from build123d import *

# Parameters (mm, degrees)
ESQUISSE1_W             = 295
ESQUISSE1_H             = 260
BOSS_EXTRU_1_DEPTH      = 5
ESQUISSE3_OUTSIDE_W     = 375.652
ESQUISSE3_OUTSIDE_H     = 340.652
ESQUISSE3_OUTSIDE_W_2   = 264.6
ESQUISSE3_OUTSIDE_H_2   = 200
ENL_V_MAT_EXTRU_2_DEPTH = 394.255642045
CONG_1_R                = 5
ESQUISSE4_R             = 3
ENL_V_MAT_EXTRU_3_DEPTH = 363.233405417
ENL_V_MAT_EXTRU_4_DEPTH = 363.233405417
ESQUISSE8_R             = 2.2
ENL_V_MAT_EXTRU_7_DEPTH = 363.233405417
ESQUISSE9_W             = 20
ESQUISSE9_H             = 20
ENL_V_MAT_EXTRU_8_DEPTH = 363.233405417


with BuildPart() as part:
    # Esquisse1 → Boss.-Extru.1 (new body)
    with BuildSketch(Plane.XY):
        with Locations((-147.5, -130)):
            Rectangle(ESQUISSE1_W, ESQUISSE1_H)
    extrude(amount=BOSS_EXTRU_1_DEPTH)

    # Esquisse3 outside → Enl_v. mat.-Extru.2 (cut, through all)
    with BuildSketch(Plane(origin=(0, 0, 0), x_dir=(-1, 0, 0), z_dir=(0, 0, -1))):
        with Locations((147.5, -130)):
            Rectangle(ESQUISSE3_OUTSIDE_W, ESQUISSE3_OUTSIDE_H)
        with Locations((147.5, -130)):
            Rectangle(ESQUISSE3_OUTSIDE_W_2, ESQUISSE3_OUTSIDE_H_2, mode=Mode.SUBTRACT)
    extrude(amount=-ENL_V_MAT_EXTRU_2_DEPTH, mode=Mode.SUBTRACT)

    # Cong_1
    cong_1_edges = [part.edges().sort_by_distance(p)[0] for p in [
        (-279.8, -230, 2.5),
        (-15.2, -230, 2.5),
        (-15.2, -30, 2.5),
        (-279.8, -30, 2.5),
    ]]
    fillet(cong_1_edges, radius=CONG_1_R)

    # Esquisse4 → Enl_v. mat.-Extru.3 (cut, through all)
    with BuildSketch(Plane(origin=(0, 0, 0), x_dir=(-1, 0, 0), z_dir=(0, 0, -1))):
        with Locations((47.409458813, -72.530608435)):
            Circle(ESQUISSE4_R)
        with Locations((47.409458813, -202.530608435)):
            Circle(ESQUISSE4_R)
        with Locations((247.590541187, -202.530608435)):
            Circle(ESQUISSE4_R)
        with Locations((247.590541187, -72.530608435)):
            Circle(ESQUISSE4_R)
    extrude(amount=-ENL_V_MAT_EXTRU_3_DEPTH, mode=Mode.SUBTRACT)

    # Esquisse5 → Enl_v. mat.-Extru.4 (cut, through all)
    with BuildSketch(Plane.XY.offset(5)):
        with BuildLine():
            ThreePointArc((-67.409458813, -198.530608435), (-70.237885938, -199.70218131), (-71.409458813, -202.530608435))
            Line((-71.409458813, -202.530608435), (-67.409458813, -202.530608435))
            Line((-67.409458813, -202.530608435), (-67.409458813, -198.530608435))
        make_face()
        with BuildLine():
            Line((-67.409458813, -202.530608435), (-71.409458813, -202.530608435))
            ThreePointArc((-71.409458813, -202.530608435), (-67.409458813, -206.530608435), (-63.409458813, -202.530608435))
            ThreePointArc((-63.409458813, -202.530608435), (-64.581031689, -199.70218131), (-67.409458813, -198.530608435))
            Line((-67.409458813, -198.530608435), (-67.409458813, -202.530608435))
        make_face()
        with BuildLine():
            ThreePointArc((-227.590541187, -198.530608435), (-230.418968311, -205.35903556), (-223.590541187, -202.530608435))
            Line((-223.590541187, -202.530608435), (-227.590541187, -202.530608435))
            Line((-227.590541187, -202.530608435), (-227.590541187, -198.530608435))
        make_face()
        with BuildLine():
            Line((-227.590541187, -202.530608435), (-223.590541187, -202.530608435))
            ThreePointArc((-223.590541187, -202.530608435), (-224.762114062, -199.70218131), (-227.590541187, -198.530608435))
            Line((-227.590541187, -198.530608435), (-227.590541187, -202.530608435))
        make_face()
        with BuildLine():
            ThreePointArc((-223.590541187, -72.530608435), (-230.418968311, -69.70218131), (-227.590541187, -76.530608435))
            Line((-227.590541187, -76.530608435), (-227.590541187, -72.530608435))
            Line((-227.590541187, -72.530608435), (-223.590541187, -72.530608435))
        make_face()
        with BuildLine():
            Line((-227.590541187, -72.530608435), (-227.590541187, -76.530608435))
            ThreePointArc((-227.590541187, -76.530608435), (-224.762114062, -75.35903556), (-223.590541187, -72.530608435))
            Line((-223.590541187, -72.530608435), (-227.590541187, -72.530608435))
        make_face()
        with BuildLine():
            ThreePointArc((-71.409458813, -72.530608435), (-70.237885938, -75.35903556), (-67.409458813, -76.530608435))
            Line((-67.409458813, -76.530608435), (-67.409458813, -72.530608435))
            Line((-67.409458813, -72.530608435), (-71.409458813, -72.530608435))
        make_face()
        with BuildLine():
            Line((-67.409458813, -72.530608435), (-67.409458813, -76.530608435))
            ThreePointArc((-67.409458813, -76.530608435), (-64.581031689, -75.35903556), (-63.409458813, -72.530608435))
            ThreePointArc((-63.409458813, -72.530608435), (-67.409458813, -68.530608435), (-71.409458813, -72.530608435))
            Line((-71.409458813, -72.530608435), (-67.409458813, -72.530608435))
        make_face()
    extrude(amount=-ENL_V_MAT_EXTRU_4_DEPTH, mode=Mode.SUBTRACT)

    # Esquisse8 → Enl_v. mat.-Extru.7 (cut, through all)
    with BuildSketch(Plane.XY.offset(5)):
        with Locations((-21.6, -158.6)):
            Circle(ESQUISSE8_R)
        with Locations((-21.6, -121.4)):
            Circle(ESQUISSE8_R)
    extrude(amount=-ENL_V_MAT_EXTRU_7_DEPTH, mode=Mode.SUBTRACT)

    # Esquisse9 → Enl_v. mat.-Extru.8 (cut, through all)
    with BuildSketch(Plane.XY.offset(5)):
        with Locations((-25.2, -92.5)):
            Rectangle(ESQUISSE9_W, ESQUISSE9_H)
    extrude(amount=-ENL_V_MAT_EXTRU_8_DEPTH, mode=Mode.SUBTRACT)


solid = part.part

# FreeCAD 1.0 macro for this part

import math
import FreeCAD as App
import Part
import Sketcher


def edges_at(feature, points):
    """Names of the edges that pass closest to the given points."""
    edges = feature.Shape.Edges
    near = lambda p: min(range(len(edges)), key=lambda i: edges[i].distToShape(Part.Vertex(*p))[0])
    return sorted({f"Edge{near(p) + 1}" for p in points})


def add_polygon(sketch, points):
    """Adds a closed chain of lines whose ends are joined by coincident constraints."""
    first, n = sketch.GeometryCount, len(points)
    for a, b in zip(points, points[1:] + points[:1]):
        sketch.addGeometry(Part.LineSegment(App.Vector(*a, 0), App.Vector(*b, 0)), False)
    for i in range(n):
        sketch.addConstraint(Sketcher.Constraint("Coincident", first + i, 2, first + (i + 1) % n, 1))

doc = App.newDocument("Part")
params = doc.addObject("Spreadsheet::Sheet", "Params")
for row, (alias, value) in enumerate([
    ("sketch1_width", "295 mm"),
    ("sketch1_height", "260 mm"),
    ("pad1_length", "5 mm"),
    ("sketch2_height", "200 mm"),
    ("sketch2_width", "264.6 mm"),
    ("fillet_radius", "5 mm"),
    ("sketch3_diameter", "6 mm"),
    ("sketch4_radius", "4 mm"),
    ("sketch5_diameter", "4.4 mm"),
    ("sketch6_width", "20 mm"),
], start=1):
    params.set(f"A{row}", alias)
    params.set(f"B{row}", "=" + value)
    params.setAlias(f"B{row}", alias)

body = doc.addObject("PartDesign::Body", "Body")

# Sketch on XY plane
sketch1 = body.newObject("Sketcher::SketchObject", "Sketch")
sketch1.AttachmentSupport = (doc.getObject("XY_Plane"), [""])
sketch1.MapMode = "FlatFace"
add_polygon(sketch1, [(-295, 0), (-295, -260), (0, -260), (0, 0)])  # lines 0-3
sketch1.addConstraint([
    Sketcher.Constraint("Vertical", 0),
    Sketcher.Constraint("Horizontal", 1),
    Sketcher.Constraint("Vertical", 2),
    Sketcher.Constraint("Horizontal", 3),
    Sketcher.Constraint("Coincident", 2, 2, -1, 1),
    Sketcher.Constraint("DistanceX", 1, 1, 1, 2, 295.0),
    Sketcher.Constraint("DistanceY", 0, 2, 0, 1, 260.0),
])
sketch1.setExpression("Constraints[9]", "Params.sketch1_width")
sketch1.setExpression("Constraints[10]", "Params.sketch1_height")
pad1 = body.newObject("PartDesign::Pad", "Pad")
pad1.Profile = sketch1
pad1.setExpression("Length", "Params.pad1_length")

# Sketch on XY plane
sketch2 = body.newObject("Sketcher::SketchObject", "Sketch001")
sketch2.AttachmentSupport = (doc.getObject("XY_Plane"), [""])
sketch2.MapMode = "FlatFace"
add_polygon(sketch2, [(40.326, 40.326), (40.326, -300.326), (-335.326, -300.326), (-335.326, 40.326)])  # lines 0-3
add_polygon(sketch2, [(-279.8, -230), (-15.2, -230), (-15.2, -30), (-279.8, -30)])  # lines 4-7
sketch2.addConstraint([
    Sketcher.Constraint("Vertical", 0),
    Sketcher.Constraint("Horizontal", 1),
    Sketcher.Constraint("Vertical", 2),
    Sketcher.Constraint("Horizontal", 3),
    Sketcher.Constraint("Horizontal", 4),
    Sketcher.Constraint("Vertical", 5),
    Sketcher.Constraint("Horizontal", 6),
    Sketcher.Constraint("Vertical", 7),
    Sketcher.Constraint("DistanceY", 5, 1, 5, 2, 200.0),
    Sketcher.Constraint("DistanceX", 4, 1, 4, 2, 264.6),
    Sketcher.Constraint("DistanceY", 4, 2, -1, 1, 230.0),
    Sketcher.Constraint("DistanceX", 4, 2, -1, 1, 15.2),
    Sketcher.Constraint("DistanceX", 1, 2, 1, 1, 375.652),
    Sketcher.Constraint("DistanceY", 0, 2, 0, 1, 340.652),
    Sketcher.Constraint("DistanceX", -1, 1, 0, 2, 40.326),
    Sketcher.Constraint("DistanceY", 0, 2, -1, 1, 300.326),
])
sketch2.setExpression("Constraints[16]", "Params.sketch2_height")
sketch2.setExpression("Constraints[17]", "Params.sketch2_width")
pocket1 = body.newObject("PartDesign::Pocket", "Pocket")
pocket1.Profile = sketch2
pocket1.Type = "ThroughAll"
pocket1.Reversed = True
doc.recompute()

fillet = body.newObject("PartDesign::Fillet", "Fillet")
fillet.Base = (pocket1, edges_at(pocket1, [
    (-279.8, -230, 2.5),
    (-15.2, -230, 2.5),
    (-15.2, -30, 2.5),
    (-279.8, -30, 2.5),
]))
fillet.setExpression("Radius", "Params.fillet_radius")

# Sketch on XY plane
sketch3 = body.newObject("Sketcher::SketchObject", "Sketch002")
sketch3.AttachmentSupport = (doc.getObject("XY_Plane"), [""])
sketch3.MapMode = "FlatFace"
sketch3.addGeometry([
    Part.Circle(App.Vector(-47.409459, -72.530608, 0), App.Vector(0, 0, 1), 3),
    Part.Circle(App.Vector(-47.409459, -202.530608, 0), App.Vector(0, 0, 1), 3),
    Part.Circle(App.Vector(-247.590541, -202.530608, 0), App.Vector(0, 0, 1), 3),
    Part.Circle(App.Vector(-247.590541, -72.530608, 0), App.Vector(0, 0, 1), 3),
], False)
sketch3.addConstraint([
    Sketcher.Constraint("Equal", 0, 1),
    Sketcher.Constraint("Equal", 1, 2),
    Sketcher.Constraint("Equal", 2, 3),
    Sketcher.Constraint("Horizontal", 1, 3, 2, 3),
    Sketcher.Constraint("Horizontal", 0, 3, 3, 3),
    Sketcher.Constraint("Vertical", 0, 3, 1, 3),
    Sketcher.Constraint("Vertical", 2, 3, 3, 3),
    Sketcher.Constraint("Diameter", 0, 6.0),
    Sketcher.Constraint("DistanceY", 1, 3, 0, 3, 130.0),
    Sketcher.Constraint("DistanceX", 0, 3, -1, 1, 47.409459),
    Sketcher.Constraint("DistanceY", 0, 3, -1, 1, 72.530608),
    Sketcher.Constraint("DistanceX", 2, 3, -1, 1, 247.590541),
])
sketch3.setExpression("Constraints[7]", "Params.sketch3_diameter")
pocket2 = body.newObject("PartDesign::Pocket", "Pocket001")
pocket2.Profile = sketch3
pocket2.Type = "ThroughAll"
pocket2.Reversed = True

# Sketch on XY plane
sketch4 = body.newObject("Sketcher::SketchObject", "Sketch003")
sketch4.AttachmentSupport = (doc.getObject("XY_Plane"), [""])
sketch4.MapMode = "FlatFace"
sketch4.AttachmentOffset = App.Placement(App.Vector(0, 0, 5), App.Rotation())
sketch4.addGeometry([
    Part.ArcOfCircle(Part.Circle(App.Vector(-67.409459, -202.530608, 0), App.Vector(0, 0, 1), 4), math.radians(90), math.radians(180)),  # 0
    Part.ArcOfCircle(Part.Circle(App.Vector(-67.409459, -202.530608, 0), App.Vector(0, 0, 1), 4), math.radians(180), math.radians(360)),  # 1
    Part.ArcOfCircle(Part.Circle(App.Vector(-67.409459, -202.530608, 0), App.Vector(0, 0, 1), 4), math.radians(0), math.radians(90)),  # 2
    Part.ArcOfCircle(Part.Circle(App.Vector(-227.590541, -202.530608, 0), App.Vector(0, 0, 1), 4), math.radians(90), math.radians(360)),  # 3
    Part.ArcOfCircle(Part.Circle(App.Vector(-227.590541, -202.530608, 0), App.Vector(0, 0, 1), 4), math.radians(0), math.radians(90)),  # 4
    Part.ArcOfCircle(Part.Circle(App.Vector(-227.590541, -72.530608, 0), App.Vector(0, 0, 1), 4), math.radians(0), math.radians(270)),  # 5
    Part.ArcOfCircle(Part.Circle(App.Vector(-227.590541, -72.530608, 0), App.Vector(0, 0, 1), 4), math.radians(-90), math.radians(0)),  # 6
    Part.ArcOfCircle(Part.Circle(App.Vector(-67.409459, -72.530608, 0), App.Vector(0, 0, 1), 4), math.radians(180), math.radians(270)),  # 7
    Part.ArcOfCircle(Part.Circle(App.Vector(-67.409459, -72.530608, 0), App.Vector(0, 0, 1), 4), math.radians(-90), math.radians(0)),  # 8
    Part.ArcOfCircle(Part.Circle(App.Vector(-67.409459, -72.530608, 0), App.Vector(0, 0, 1), 4), math.radians(0), math.radians(180)),  # 9
], False)
sketch4.addConstraint([
    Sketcher.Constraint("Tangent", 0, 2, 1, 1),
    Sketcher.Constraint("Tangent", 1, 2, 2, 1),
    Sketcher.Constraint("Tangent", 2, 2, 0, 1),
    Sketcher.Constraint("Tangent", 3, 1, 4, 2),
    Sketcher.Constraint("Coincident", 4, 1, 3, 2),
    Sketcher.Constraint("Tangent", 5, 1, 6, 2),
    Sketcher.Constraint("Coincident", 6, 1, 5, 2),
    Sketcher.Constraint("Tangent", 7, 2, 8, 1),
    Sketcher.Constraint("Tangent", 8, 2, 9, 1),
    Sketcher.Constraint("Tangent", 9, 2, 7, 1),
    Sketcher.Constraint("Equal", 2, 3),
    Sketcher.Constraint("Equal", 4, 5),
    Sketcher.Constraint("Equal", 6, 7),
    Sketcher.Constraint("Horizontal", 2, 3, 3, 3),
    Sketcher.Constraint("Horizontal", 6, 3, 7, 3),
    Sketcher.Constraint("Horizontal", 4, 3, 0, 2),
    Sketcher.Constraint("Horizontal", 0, 2, 1, 2),
    Sketcher.Constraint("Horizontal", 1, 2, 4, 1),
    Sketcher.Constraint("Horizontal", 9, 3, 5, 1),
    Sketcher.Constraint("Horizontal", 5, 1, 8, 2),
    Sketcher.Constraint("Horizontal", 8, 2, 9, 2),
    Sketcher.Constraint("Vertical", 4, 3, 5, 3),
    Sketcher.Constraint("Vertical", 2, 3, 7, 3),
    Sketcher.Constraint("Vertical", 9, 3, 2, 2),
    Sketcher.Constraint("Vertical", 6, 3, 3, 1),
    Sketcher.Constraint("Vertical", 3, 1, 6, 1),
    Sketcher.Constraint("Vertical", 2, 2, 7, 2),
    Sketcher.Constraint("Radius", 0, 4.0),
    Sketcher.Constraint("DistanceY", 4, 3, 5, 3, 130.0),
    Sketcher.Constraint("DistanceX", 0, 3, -1, 1, 67.409459),
    Sketcher.Constraint("DistanceY", 0, 3, -1, 1, 202.530608),
    Sketcher.Constraint("DistanceX", 3, 3, -1, 1, 227.590541),
])
sketch4.setExpression("Constraints[27]", "Params.sketch4_radius")
pocket3 = body.newObject("PartDesign::Pocket", "Pocket002")
pocket3.Profile = sketch4
pocket3.Type = "ThroughAll"

# Sketch on XY plane
sketch5 = body.newObject("Sketcher::SketchObject", "Sketch004")
sketch5.AttachmentSupport = (doc.getObject("XY_Plane"), [""])
sketch5.MapMode = "FlatFace"
sketch5.AttachmentOffset = App.Placement(App.Vector(0, 0, 5), App.Rotation())
sketch5.addGeometry([
    Part.Circle(App.Vector(-21.6, -158.6, 0), App.Vector(0, 0, 1), 2.2),
    Part.Circle(App.Vector(-21.6, -121.4, 0), App.Vector(0, 0, 1), 2.2),
], False)
sketch5.addConstraint([
    Sketcher.Constraint("Equal", 0, 1),
    Sketcher.Constraint("Vertical", 0, 3, 1, 3),
    Sketcher.Constraint("Diameter", 0, 4.4),
    Sketcher.Constraint("DistanceX", 0, 3, -1, 1, 21.6),
    Sketcher.Constraint("DistanceY", 0, 3, -1, 1, 158.6),
    Sketcher.Constraint("DistanceY", 1, 3, -1, 1, 121.4),
])
sketch5.setExpression("Constraints[2]", "Params.sketch5_diameter")
pocket4 = body.newObject("PartDesign::Pocket", "Pocket003")
pocket4.Profile = sketch5
pocket4.Type = "ThroughAll"

# Sketch on XY plane
sketch6 = body.newObject("Sketcher::SketchObject", "Sketch005")
sketch6.AttachmentSupport = (doc.getObject("XY_Plane"), [""])
sketch6.MapMode = "FlatFace"
sketch6.AttachmentOffset = App.Placement(App.Vector(0, 0, 5), App.Rotation())
add_polygon(sketch6, [(-35.2, -82.5), (-35.2, -102.5), (-15.2, -102.5), (-15.2, -82.5)])  # lines 0-3
sketch6.addConstraint([
    Sketcher.Constraint("Vertical", 0),
    Sketcher.Constraint("Horizontal", 1),
    Sketcher.Constraint("Vertical", 2),
    Sketcher.Constraint("Horizontal", 3),
    Sketcher.Constraint("Equal", 3, 0),
    Sketcher.Constraint("DistanceX", 1, 1, 1, 2, 20.0),
    Sketcher.Constraint("DistanceX", 0, 2, -1, 1, 35.2),
    Sketcher.Constraint("DistanceY", 0, 2, -1, 1, 102.5),
])
sketch6.setExpression("Constraints[9]", "Params.sketch6_width")
pocket5 = body.newObject("PartDesign::Pocket", "Pocket004")
pocket5.Profile = sketch6
pocket5.Type = "ThroughAll"

doc.recompute()
